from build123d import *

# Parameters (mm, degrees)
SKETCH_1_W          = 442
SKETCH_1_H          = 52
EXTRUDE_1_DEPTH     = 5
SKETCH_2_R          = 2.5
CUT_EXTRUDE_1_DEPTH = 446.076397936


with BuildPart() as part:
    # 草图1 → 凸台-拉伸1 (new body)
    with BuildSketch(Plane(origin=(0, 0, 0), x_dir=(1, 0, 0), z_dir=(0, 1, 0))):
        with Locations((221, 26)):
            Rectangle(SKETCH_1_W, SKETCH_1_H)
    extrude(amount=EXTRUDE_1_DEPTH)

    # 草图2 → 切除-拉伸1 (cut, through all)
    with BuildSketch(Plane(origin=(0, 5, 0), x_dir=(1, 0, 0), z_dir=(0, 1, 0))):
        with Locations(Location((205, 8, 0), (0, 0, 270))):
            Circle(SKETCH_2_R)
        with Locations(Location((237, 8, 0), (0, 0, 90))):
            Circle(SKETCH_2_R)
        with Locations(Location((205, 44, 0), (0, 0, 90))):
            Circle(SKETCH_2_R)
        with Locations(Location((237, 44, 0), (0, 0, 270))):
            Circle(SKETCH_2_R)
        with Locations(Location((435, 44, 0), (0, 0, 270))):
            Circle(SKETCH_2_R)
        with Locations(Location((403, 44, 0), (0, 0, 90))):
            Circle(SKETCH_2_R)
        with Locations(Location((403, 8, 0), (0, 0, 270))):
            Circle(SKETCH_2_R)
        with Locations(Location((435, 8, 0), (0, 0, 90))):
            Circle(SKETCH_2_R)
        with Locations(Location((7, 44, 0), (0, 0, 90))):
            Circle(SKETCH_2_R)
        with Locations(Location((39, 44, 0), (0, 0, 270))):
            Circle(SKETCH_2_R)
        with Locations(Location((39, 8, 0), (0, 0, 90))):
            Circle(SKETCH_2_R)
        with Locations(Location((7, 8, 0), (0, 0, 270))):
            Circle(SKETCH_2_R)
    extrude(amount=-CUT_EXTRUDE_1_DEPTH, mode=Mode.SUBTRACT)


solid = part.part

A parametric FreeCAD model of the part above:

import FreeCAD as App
import Part
import Sketcher
from FreeCAD import Vector

doc = App.newDocument("Part")
params = doc.addObject("Spreadsheet::Sheet", "Params")
for row, (alias, value) in enumerate([
    ("sketch1_width", "442 mm"),
    ("sketch1_height", "52 mm"),
    ("pad1_length", "5 mm"),
    ("sketch2_diameter", "5 mm"),
], start=1):
    params.set(f"A{row}", alias)
    params.set(f"B{row}", "=" + value)
    params.setAlias(f"B{row}", alias)

body = doc.addObject("PartDesign::Body", "Body")

# Sketch on XZ plane
sketch1 = body.newObject("Sketcher::SketchObject", "Sketch")
sketch1.AttachmentSupport = (doc.getObject("XZ_Plane"), [""])
sketch1.MapMode = "FlatFace"
sketch1.addGeometry([
    Part.LineSegment(Vector(0, -52, 0), Vector(0, 0, 0)),
    Part.LineSegment(Vector(0, 0, 0), Vector(442, 0, 0)),
    Part.LineSegment(Vector(442, 0, 0), Vector(442, -52, 0)),
    Part.LineSegment(Vector(442, -52, 0), Vector(0, -52, 0)),
], False)
sketch1.addConstraint([
    Sketcher.Constraint("Coincident", 0, 2, 1, 1),
    Sketcher.Constraint("Coincident", 1, 2, 2, 1),
    Sketcher.Constraint("Coincident", 2, 2, 3, 1),
    Sketcher.Constraint("Coincident", 3, 2, 0, 1),
    Sketcher.Constraint("Vertical", 0),
    Sketcher.Constraint("Horizontal", 1),
    Sketcher.Constraint("Vertical", 2),
    Sketcher.Constraint("Horizontal", 3),
    Sketcher.Constraint("Coincident", 0, 2, -1, 1),
    Sketcher.Constraint("DistanceX", 1, 1, 1, 2, 442.0),
    Sketcher.Constraint("DistanceY", 0, 1, 0, 2, 52.0),
])
sketch1.setExpression("Constraints[9]", "Params.sketch1_width")
sketch1.setExpression("Constraints[10]", "Params.sketch1_height")
pad1 = body.newObject("PartDesign::Pad", "Pad")
pad1.Profile = sketch1
pad1.setExpression("Length", "Params.pad1_length")
pad1.Reversed = True

# Sketch on XZ plane
sketch2 = body.newObject("Sketcher::SketchObject", "Sketch001")
sketch2.AttachmentSupport = (doc.getObject("XZ_Plane"), [""])
sketch2.MapMode = "FlatFace"
sketch2.AttachmentOffset = App.Placement(Vector(0, 0, -5), App.Rotation())
sketch2.addGeometry([
    Part.Circle(Vector(205, -8, 0), Vector(0, 0, 1), 2.5),  # 0
    Part.Circle(Vector(237, -8, 0), Vector(0, 0, 1), 2.5),  # 1
    Part.Circle(Vector(205, -44, 0), Vector(0, 0, 1), 2.5),  # 2
    Part.Circle(Vector(237, -44, 0), Vector(0, 0, 1), 2.5),  # 3
    Part.Circle(Vector(435, -44, 0), Vector(0, 0, 1), 2.5),  # 4
    Part.Circle(Vector(403, -44, 0), Vector(0, 0, 1), 2.5),  # 5
    Part.Circle(Vector(403, -8, 0), Vector(0, 0, 1), 2.5),  # 6
    Part.Circle(Vector(435, -8, 0), Vector(0, 0, 1), 2.5),  # 7
    Part.Circle(Vector(7, -44, 0), Vector(0, 0, 1), 2.5),  # 8
    Part.Circle(Vector(39, -44, 0), Vector(0, 0, 1), 2.5),  # 9
    Part.Circle(Vector(39, -8, 0), Vector(0, 0, 1), 2.5),  # 10
    Part.Circle(Vector(7, -8, 0), Vector(0, 0, 1), 2.5),  # 11
], False)
sketch2.addConstraint([
    Sketcher.Constraint("Equal", 0, 1),
    Sketcher.Constraint("Equal", 1, 2),
    Sketcher.Constraint("Equal", 2, 3),
    Sketcher.Constraint("Equal", 3, 4),
    Sketcher.Constraint("Equal", 4, 5),
    Sketcher.Constraint("Equal", 5, 6),
    Sketcher.Constraint("Equal", 6, 7),
    Sketcher.Constraint("Equal", 7, 8),
    Sketcher.Constraint("Equal", 8, 9),
    Sketcher.Constraint("Equal", 9, 10),
    Sketcher.Constraint("Equal", 10, 11),
    Sketcher.Constraint("Horizontal", 0, 3, 1, 3),
    Sketcher.Constraint("Horizontal", 2, 3, 3, 3),
    Sketcher.Constraint("Horizontal", 3, 3, 4, 3),
    Sketcher.Constraint("Horizontal", 4, 3, 5, 3),
    Sketcher.Constraint("Horizontal", 1, 3, 6, 3),
    Sketcher.Constraint("Horizontal", 6, 3, 7, 3),
    Sketcher.Constraint("Horizontal", 5, 3, 8, 3),
    Sketcher.Constraint("Horizontal", 8, 3, 9, 3),
    Sketcher.Constraint("Horizontal", 7, 3, 10, 3),
    Sketcher.Constraint("Horizontal", 10, 3, 11, 3),
    Sketcher.Constraint("Vertical", 0, 3, 2, 3),
    Sketcher.Constraint("Vertical", 1, 3, 3, 3),
    Sketcher.Constraint("Vertical", 5, 3, 6, 3),
    Sketcher.Constraint("Vertical", 4, 3, 7, 3),
    Sketcher.Constraint("Vertical", 9, 3, 10, 3),
    Sketcher.Constraint("Vertical", 8, 3, 11, 3),
    Sketcher.Constraint("Diameter", 0, 5.0),
    Sketcher.Constraint("DistanceX", -1, 1, 0, 3, 205.0),
    Sketcher.Constraint("DistanceY", 0, 3, -1, 1, 8.0),
    Sketcher.Constraint("DistanceX", -1, 1, 1, 3, 237.0),
    Sketcher.Constraint("DistanceY", 2, 3, -1, 1, 44.0),
    Sketcher.Constraint("DistanceX", -1, 1, 4, 3, 435.0),
    Sketcher.Constraint("DistanceX", -1, 1, 5, 3, 403.0),
    Sketcher.Constraint("DistanceX", -1, 1, 8, 3, 7.0),
    Sketcher.Constraint("DistanceX", -1, 1, 9, 3, 39.0),
])
sketch2.setExpression("Constraints[27]", "Params.sketch2_diameter")
pocket1 = body.newObject("PartDesign::Pocket", "Pocket")
pocket1.Profile = sketch2
pocket1.Type = "ThroughAll"
pocket1.Reversed = True

doc.recompute()
